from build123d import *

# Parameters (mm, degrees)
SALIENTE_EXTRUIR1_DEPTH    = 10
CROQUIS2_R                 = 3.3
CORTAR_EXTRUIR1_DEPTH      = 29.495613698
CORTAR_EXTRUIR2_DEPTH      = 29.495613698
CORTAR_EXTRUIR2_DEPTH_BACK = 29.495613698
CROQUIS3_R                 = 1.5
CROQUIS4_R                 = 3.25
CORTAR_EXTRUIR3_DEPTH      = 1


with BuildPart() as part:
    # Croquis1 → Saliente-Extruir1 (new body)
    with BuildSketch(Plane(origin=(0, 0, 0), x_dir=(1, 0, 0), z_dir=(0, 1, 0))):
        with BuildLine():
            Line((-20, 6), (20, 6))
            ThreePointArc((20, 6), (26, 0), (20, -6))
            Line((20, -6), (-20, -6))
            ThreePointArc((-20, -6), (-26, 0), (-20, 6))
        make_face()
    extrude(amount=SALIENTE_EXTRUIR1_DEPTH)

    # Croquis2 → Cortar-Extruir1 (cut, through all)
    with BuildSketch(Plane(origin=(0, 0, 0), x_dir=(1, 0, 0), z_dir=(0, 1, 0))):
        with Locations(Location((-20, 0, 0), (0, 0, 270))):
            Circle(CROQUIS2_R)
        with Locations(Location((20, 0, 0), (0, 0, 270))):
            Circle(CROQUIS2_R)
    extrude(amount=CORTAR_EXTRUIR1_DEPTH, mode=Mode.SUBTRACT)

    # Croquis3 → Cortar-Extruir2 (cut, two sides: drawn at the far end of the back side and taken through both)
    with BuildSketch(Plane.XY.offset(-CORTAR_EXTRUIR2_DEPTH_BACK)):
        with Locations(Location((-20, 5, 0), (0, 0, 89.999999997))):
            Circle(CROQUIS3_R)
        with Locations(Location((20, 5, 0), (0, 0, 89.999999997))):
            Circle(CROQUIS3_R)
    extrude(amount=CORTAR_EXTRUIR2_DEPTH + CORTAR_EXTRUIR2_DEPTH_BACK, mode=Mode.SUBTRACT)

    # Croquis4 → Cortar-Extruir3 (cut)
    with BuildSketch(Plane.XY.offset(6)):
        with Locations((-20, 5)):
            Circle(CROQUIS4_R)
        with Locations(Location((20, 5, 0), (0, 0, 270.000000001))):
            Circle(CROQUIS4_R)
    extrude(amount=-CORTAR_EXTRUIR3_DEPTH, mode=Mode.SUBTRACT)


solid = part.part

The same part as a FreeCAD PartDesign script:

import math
import FreeCAD as App
import Part
import Sketcher

V = App.Vector
Q = App.Units.Quantity

doc = App.newDocument("Part")
params = doc.addObject("Spreadsheet::Sheet", "Params")
for row, (alias, value) in enumerate([
    ("sketch1_radius", "6 mm"),
    ("sketch1_width", "40 mm"),
    ("pad1_length", "10 mm"),
    ("sketch2_diameter", "6.6 mm"),
    ("sketch3_diameter", "3 mm"),
    ("sketch4_diameter", "6.5 mm"),
    ("pocket3_length", "1 mm"),
], start=1):
    params.set(f"A{row}", alias)
    params.set(f"B{row}", "=" + value)
    params.setAlias(f"B{row}", alias)

body = doc.addObject("PartDesign::Body", "Body")

# Sketch on XZ plane
sketch1 = body.newObject("Sketcher::SketchObject", "Sketch")
sketch1.AttachmentSupport = (doc.getObject("XZ_Plane"), [""])
sketch1.MapMode = "FlatFace"
sketch1.addGeometry([
    Part.LineSegment(V(20, -6, 0), V(-20, -6, 0)),
    Part.ArcOfCircle(Part.Circle(V(-20, 0, 0), V(0, 0, 1), 6), math.radians(90), math.radians(270)),
    Part.LineSegment(V(-20, 6, 0), V(20, 6, 0)),
    Part.ArcOfCircle(Part.Circle(V(20, 0, 0), V(0, 0, 1), 6), math.radians(-90), math.radians(90)),
], False)
sketch1.addConstraint([
    Sketcher.Constraint("Tangent", 0, 2, 1, 2),
    Sketcher.Constraint("Tangent", 1, 1, 2, 1),
    Sketcher.Constraint("Tangent", 2, 2, 3, 2),
    Sketcher.Constraint("Tangent", 3, 1, 0, 1),
    Sketcher.Constraint("Horizontal", 0),
    Sketcher.Constraint("Horizontal", 2),
    Sketcher.Constraint("Symmetric", 1, 3, 3, 3, -1, 1),
    Sketcher.Constraint("Radius", 1, Q("6 mm")),
    Sketcher.Constraint("DistanceX", 0, 2, 0, 1, Q("40 mm")),
])
sketch1.setExpression("Constraints[7]", "Params.sketch1_radius")
sketch1.setExpression("Constraints[8]", "Params.sketch1_width")
pad1 = body.newObject("PartDesign::Pad", "Pad")
pad1.Profile = sketch1
pad1.setExpression("Length", "Params.pad1_length")
pad1.Reversed = True

# Sketch on XZ plane
sketch2 = body.newObject("Sketcher::SketchObject", "Sketch001")
sketch2.AttachmentSupport = (doc.getObject("XZ_Plane"), [""])
sketch2.MapMode = "FlatFace"
sketch2.addGeometry([
    Part.Circle(V(-20, 0, 0), V(0, 0, 1), 3.3),
    Part.Circle(V(20, 0, 0), V(0, 0, 1), 3.3),
], False)
sketch2.addConstraint([
    Sketcher.Constraint("Equal", 0, 1),
    Sketcher.Constraint("Symmetric", 0, 3, 1, 3, -1, 1),
    Sketcher.Constraint("PointOnObject", 0, 3, -1),
    Sketcher.Constraint("Diameter", 0, Q("6.6 mm")),
    Sketcher.Constraint("DistanceX", 0, 3, -1, 1, Q("20 mm")),
])
sketch2.setExpression("Constraints[3]", "Params.sketch2_diameter")
pocket1 = body.newObject("PartDesign::Pocket", "Pocket")
pocket1.Profile = sketch2
pocket1.Type = "ThroughAll"

# Sketch on XY plane
sketch3 = body.newObject("Sketcher::SketchObject", "Sketch002")
sketch3.AttachmentSupport = (doc.getObject("XY_Plane"), [""])
sketch3.MapMode = "FlatFace"
sketch3.addGeometry([
    Part.Circle(V(-20, 5, 0), V(0, 0, 1), 1.5),
    Part.Circle(V(20, 5, 0), V(0, 0, 1), 1.5),
], False)
sketch3.addConstraint([
    Sketcher.Constraint("Equal", 0, 1),
    Sketcher.Constraint("Symmetric", 0, 3, 1, 3, -2),
    Sketcher.Constraint("Diameter", 0, Q("3 mm")),
    Sketcher.Constraint("DistanceX", 0, 3, -1, 1, Q("20 mm")),
    Sketcher.Constraint("DistanceY", -1, 1, 0, 3, Q("5 mm")),
])
sketch3.setExpression("Constraints[2]", "Params.sketch3_diameter")
pocket2 = body.newObject("PartDesign::Pocket", "Pocket001")
pocket2.Profile = sketch3
pocket2.Type = "ThroughAll"
pocket2.Midplane = True

# Sketch on XY plane
sketch4 = body.newObject("Sketcher::SketchObject", "Sketch003")
sketch4.AttachmentSupport = (doc.getObject("XY_Plane"), [""])
sketch4.MapMode = "FlatFace"
sketch4.AttachmentOffset = App.Placement(V(0, 0, 6), App.Rotation())
sketch4.addGeometry([
    Part.Circle(V(-20, 5, 0), V(0, 0, 1), 3.25),
    Part.Circle(V(20, 5, 0), V(0, 0, 1), 3.25),
], False)
sketch4.addConstraint([
    Sketcher.Constraint("Equal", 0, 1),
    Sketcher.Constraint("Symmetric", 0, 3, 1, 3, -2),
    Sketcher.Constraint("Diameter", 0, Q("6.5 mm")),
    Sketcher.Constraint("DistanceX", 0, 3, -1, 1, Q("20 mm")),
    Sketcher.Constraint("DistanceY", -1, 1, 0, 3, Q("5 mm")),
])
sketch4.setExpression("Constraints[2]", "Params.sketch4_diameter")
pocket3 = body.newObject("PartDesign::Pocket", "Pocket002")
pocket3.Profile = sketch4
pocket3.setExpression("Length", "Params.pocket3_length")

doc.recompute()
